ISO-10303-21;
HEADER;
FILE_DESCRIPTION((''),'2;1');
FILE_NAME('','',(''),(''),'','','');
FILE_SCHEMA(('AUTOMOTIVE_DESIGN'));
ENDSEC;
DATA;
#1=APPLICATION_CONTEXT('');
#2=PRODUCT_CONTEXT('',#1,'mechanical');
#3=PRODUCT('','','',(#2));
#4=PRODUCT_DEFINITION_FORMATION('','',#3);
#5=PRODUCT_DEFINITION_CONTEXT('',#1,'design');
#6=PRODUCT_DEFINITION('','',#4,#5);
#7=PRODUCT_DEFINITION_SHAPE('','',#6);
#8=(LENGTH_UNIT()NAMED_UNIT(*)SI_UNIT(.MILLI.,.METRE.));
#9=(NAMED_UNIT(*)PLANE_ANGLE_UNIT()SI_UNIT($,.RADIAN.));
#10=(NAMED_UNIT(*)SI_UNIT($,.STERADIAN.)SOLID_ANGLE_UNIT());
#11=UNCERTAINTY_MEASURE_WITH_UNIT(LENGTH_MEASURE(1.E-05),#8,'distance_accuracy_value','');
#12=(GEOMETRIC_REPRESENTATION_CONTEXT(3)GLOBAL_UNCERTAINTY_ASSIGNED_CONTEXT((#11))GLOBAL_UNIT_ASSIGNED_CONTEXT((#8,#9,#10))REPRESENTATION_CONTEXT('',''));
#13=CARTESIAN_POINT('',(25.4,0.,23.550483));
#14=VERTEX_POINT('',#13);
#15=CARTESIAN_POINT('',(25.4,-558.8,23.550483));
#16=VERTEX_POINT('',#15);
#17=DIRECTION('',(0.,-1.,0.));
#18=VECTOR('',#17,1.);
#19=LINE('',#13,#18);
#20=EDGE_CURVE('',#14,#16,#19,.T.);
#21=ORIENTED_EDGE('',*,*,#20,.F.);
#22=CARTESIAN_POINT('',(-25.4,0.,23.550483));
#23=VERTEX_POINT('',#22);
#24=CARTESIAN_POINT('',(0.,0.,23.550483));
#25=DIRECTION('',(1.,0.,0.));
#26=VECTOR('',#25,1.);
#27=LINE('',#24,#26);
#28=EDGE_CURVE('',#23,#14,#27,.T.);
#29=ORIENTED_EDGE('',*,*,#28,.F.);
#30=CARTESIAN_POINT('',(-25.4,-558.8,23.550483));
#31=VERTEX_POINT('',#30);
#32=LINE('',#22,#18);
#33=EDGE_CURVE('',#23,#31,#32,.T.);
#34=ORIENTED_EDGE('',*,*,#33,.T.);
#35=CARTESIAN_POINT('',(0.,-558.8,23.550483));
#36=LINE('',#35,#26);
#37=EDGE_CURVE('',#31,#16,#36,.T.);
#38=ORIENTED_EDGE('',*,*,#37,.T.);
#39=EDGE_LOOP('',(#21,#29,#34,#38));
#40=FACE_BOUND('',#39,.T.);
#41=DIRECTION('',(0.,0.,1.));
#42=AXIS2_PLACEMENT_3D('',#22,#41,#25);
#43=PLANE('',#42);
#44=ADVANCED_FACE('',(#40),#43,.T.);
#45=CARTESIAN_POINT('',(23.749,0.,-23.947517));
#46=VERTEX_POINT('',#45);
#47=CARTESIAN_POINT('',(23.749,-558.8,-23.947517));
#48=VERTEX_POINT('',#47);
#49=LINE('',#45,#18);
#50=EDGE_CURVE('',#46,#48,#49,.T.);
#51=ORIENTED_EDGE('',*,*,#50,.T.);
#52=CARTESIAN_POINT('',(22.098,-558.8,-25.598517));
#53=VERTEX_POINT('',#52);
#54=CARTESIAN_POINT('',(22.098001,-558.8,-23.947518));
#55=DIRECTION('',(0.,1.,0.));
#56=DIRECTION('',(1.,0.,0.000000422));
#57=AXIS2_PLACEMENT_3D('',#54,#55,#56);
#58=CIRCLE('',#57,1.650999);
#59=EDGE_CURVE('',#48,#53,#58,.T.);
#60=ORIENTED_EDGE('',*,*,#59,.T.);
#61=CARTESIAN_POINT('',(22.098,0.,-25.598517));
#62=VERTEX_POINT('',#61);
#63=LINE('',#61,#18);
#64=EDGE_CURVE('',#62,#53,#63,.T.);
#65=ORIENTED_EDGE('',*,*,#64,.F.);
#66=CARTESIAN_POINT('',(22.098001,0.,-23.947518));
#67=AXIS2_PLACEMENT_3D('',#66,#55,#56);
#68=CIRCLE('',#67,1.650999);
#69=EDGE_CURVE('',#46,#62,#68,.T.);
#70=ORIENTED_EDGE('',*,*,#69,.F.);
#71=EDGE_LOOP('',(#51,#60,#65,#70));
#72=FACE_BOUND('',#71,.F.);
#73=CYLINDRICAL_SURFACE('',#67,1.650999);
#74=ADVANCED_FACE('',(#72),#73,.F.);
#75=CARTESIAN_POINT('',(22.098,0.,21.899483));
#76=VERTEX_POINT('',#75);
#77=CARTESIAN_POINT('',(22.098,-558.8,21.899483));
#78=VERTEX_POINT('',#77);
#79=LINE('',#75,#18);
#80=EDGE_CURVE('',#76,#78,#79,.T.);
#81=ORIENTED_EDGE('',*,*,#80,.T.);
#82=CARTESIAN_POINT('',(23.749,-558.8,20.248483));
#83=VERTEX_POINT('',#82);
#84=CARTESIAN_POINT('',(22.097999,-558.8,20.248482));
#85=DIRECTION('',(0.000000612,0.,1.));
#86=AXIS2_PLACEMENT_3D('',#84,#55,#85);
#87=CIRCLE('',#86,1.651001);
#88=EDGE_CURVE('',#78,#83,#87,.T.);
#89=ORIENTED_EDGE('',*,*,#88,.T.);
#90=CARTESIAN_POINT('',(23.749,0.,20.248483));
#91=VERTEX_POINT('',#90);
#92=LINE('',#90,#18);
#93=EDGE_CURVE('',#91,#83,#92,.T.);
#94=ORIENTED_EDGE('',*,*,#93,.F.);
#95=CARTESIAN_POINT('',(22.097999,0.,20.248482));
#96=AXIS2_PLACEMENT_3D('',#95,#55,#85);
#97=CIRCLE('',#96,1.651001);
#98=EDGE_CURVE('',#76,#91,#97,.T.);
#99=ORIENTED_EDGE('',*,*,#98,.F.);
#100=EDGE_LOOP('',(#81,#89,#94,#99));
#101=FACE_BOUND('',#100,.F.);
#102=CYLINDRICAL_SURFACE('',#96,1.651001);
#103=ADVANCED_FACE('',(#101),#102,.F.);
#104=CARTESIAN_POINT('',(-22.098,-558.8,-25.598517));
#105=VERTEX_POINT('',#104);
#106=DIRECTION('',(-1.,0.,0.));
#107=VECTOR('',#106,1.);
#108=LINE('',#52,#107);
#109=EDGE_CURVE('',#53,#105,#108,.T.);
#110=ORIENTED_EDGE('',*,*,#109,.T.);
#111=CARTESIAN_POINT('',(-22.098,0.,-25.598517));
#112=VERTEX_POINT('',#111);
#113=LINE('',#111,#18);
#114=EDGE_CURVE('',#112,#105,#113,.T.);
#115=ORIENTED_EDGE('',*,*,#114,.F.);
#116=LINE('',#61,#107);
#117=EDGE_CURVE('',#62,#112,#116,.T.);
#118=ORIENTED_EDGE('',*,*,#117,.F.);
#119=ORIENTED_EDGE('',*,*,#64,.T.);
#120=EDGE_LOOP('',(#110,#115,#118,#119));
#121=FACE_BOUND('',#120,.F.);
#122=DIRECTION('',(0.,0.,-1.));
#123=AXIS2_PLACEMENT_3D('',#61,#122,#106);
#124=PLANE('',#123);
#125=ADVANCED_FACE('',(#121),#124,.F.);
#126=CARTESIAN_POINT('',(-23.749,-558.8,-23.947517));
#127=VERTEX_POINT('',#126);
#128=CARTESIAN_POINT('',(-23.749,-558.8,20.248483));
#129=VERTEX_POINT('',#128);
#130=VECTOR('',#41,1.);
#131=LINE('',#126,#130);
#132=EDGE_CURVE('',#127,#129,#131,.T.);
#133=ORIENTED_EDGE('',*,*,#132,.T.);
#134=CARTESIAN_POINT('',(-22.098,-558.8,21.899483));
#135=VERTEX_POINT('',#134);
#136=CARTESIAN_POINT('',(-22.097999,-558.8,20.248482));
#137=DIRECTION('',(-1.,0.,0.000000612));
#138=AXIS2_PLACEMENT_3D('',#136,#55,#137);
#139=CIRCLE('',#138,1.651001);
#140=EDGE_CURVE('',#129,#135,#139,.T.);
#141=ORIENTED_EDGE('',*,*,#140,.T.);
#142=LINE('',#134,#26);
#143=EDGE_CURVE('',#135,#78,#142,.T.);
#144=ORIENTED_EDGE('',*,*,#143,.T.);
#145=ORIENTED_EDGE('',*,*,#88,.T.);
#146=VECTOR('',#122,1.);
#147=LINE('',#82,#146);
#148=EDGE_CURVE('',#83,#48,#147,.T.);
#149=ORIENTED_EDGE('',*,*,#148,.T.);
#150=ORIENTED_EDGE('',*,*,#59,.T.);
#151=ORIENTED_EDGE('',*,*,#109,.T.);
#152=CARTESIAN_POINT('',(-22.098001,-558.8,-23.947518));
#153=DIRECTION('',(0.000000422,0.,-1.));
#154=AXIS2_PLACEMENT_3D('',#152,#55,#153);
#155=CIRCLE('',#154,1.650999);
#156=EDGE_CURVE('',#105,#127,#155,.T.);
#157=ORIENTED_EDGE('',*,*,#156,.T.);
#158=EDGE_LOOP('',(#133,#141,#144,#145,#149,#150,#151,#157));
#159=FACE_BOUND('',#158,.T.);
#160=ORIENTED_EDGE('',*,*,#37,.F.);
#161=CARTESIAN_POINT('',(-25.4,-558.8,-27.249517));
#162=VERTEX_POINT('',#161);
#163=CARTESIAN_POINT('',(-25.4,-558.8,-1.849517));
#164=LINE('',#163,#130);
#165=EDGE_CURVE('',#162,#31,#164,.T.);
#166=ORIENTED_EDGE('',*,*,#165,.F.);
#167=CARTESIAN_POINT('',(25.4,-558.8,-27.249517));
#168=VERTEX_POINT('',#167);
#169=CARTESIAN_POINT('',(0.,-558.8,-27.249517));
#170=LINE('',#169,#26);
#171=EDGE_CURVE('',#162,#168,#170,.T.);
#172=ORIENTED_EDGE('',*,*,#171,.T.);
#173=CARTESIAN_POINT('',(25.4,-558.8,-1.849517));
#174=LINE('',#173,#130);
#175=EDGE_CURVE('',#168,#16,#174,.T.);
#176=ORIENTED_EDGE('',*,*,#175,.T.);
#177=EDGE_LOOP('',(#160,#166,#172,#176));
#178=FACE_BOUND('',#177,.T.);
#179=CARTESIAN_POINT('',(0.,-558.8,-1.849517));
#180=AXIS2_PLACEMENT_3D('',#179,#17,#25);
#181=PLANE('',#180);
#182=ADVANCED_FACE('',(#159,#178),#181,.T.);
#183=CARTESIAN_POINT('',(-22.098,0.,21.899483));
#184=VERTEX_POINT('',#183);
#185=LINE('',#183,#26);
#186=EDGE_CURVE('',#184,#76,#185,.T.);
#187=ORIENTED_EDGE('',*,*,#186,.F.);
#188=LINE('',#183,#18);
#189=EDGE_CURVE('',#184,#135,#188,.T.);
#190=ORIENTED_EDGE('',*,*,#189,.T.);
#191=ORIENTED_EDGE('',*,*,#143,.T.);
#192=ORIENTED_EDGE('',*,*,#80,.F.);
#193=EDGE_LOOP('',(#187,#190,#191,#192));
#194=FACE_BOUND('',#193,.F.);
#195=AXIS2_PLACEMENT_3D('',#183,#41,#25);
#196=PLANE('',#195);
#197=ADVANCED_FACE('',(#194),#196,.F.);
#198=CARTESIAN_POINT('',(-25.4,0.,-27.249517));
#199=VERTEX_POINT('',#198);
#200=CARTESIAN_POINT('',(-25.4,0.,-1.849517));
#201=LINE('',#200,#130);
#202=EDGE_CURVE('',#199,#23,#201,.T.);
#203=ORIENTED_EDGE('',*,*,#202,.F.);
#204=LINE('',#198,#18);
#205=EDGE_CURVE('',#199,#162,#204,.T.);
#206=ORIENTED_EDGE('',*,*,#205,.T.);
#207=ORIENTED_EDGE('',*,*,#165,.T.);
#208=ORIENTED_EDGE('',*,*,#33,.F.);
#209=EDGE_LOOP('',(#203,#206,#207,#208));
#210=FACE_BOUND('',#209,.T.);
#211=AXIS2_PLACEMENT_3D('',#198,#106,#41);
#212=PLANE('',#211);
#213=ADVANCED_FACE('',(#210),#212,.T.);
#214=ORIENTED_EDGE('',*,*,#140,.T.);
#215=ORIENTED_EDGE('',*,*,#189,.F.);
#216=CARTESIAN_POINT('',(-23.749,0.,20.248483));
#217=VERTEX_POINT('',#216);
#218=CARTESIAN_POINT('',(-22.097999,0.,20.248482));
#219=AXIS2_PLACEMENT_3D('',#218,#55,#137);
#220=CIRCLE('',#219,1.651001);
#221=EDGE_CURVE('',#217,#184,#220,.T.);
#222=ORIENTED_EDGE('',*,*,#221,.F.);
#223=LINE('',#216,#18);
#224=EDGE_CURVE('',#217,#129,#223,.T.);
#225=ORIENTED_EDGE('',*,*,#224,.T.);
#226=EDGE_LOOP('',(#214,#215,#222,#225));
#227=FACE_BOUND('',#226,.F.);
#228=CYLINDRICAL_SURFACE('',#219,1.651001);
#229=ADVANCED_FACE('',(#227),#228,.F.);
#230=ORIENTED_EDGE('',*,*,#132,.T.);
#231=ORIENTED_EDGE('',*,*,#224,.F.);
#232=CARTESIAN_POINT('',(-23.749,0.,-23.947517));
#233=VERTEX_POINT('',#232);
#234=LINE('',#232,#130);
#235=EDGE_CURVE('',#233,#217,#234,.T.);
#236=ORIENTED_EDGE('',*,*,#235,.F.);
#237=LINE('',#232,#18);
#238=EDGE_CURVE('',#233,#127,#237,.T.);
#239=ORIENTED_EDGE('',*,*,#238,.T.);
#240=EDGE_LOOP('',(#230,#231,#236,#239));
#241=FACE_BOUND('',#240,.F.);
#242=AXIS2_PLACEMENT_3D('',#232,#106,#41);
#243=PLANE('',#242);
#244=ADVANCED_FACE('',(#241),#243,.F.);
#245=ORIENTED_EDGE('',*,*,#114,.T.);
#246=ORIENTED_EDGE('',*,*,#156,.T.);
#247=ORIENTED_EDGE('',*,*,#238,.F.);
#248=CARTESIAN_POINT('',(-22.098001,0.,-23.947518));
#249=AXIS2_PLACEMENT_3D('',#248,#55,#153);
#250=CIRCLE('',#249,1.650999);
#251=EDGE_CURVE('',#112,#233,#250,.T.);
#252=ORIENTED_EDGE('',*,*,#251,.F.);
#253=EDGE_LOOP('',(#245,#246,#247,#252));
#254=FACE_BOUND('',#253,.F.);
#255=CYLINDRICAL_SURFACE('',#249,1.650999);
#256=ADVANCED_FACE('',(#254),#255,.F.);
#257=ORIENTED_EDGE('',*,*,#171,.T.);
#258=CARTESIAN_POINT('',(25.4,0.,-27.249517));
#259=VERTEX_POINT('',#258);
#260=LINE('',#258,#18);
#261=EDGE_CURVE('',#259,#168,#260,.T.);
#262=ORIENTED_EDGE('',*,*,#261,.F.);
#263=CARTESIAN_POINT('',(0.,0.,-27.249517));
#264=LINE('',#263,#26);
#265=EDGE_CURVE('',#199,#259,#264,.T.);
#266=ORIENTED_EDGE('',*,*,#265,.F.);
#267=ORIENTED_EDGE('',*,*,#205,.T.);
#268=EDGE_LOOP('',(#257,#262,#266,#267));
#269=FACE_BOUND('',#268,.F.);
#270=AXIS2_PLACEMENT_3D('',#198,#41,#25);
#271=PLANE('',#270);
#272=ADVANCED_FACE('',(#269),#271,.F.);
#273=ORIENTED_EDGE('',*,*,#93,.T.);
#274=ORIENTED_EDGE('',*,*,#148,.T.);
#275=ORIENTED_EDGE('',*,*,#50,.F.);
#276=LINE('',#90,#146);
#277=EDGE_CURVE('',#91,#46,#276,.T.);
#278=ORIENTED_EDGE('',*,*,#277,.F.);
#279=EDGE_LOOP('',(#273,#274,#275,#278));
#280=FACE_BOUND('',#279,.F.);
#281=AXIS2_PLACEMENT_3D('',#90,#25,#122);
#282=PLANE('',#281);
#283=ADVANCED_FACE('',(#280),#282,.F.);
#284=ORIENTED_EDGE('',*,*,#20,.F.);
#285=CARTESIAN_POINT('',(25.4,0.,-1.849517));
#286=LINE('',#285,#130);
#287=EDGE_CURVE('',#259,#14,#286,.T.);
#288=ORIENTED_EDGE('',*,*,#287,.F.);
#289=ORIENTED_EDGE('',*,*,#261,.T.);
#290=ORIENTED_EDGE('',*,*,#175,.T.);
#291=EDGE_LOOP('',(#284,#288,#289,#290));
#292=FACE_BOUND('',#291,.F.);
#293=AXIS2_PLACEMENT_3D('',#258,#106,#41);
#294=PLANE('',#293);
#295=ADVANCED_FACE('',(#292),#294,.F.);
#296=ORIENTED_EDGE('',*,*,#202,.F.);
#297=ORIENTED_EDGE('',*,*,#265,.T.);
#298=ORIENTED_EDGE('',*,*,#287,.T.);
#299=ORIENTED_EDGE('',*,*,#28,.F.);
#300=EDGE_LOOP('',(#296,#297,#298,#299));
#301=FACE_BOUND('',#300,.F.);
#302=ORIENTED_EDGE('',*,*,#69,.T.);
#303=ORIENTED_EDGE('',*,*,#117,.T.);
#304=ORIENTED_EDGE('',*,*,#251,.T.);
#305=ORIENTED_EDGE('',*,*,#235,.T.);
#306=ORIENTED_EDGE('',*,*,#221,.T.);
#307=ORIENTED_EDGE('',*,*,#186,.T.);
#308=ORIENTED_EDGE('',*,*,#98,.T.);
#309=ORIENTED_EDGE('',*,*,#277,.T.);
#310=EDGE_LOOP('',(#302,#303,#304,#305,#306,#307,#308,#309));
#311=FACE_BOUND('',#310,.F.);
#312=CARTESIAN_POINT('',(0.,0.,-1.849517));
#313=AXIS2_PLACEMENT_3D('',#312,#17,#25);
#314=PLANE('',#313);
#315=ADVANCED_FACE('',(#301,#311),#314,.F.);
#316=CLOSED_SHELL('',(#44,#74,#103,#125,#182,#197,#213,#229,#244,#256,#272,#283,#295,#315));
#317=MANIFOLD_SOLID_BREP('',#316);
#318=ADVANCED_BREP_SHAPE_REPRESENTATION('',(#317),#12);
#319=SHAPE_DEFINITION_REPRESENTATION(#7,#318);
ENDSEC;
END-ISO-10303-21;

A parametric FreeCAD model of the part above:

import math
import FreeCAD as App
import Part
import Sketcher
from FreeCAD import Vector
Q = App.Units.Quantity

doc = App.newDocument("Part")
body = doc.addObject("PartDesign::Body", "Body")

# Sketch on XZ plane
sketch1 = body.newObject("Sketcher::SketchObject", "Sketch")
sketch1.AttachmentSupport = (doc.getObject("XZ_Plane"), [""])
sketch1.MapMode = "FlatFace"
sketch1.addGeometry([
    Part.LineSegment(Vector(-25.4, 23.6, 0), Vector(-25.4, -27.2, 0)),  # 0
    Part.LineSegment(Vector(-25.4, -27.2, 0), Vector(25.4, -27.2, 0)),  # 1
    Part.LineSegment(Vector(25.4, -27.2, 0), Vector(25.4, 23.6, 0)),  # 2
    Part.LineSegment(Vector(25.4, 23.6, 0), Vector(-25.4, 23.6, 0)),  # 3
    Part.ArcOfCircle(Part.Circle(Vector(-22.1, 20.2, 0), Vector(0, 0, 1), 1.7), math.radians(90), math.radians(180)),  # 4
    Part.LineSegment(Vector(-22.1, 21.9, 0), Vector(22.1, 21.9, 0)),  # 5
    Part.ArcOfCircle(Part.Circle(Vector(22.1, 20.2, 0), Vector(0, 0, 1), 1.7), math.radians(0), math.radians(90)),  # 6
    Part.LineSegment(Vector(23.7, 20.2, 0), Vector(23.7, -23.9, 0)),  # 7
    Part.ArcOfCircle(Part.Circle(Vector(22.1, -23.9, 0), Vector(0, 0, 1), 1.7), math.radians(-90), math.radians(0)),  # 8
    Part.LineSegment(Vector(22.1, -25.6, 0), Vector(-22.1, -25.6, 0)),  # 9
    Part.ArcOfCircle(Part.Circle(Vector(-22.1, -23.9, 0), Vector(0, 0, 1), 1.7), math.radians(180), math.radians(270)),  # 10
    Part.LineSegment(Vector(-23.7, -23.9, 0), Vector(-23.7, 20.2, 0)),  # 11
], False)
sketch1.addConstraint([
    Sketcher.Constraint("Coincident", 0, 2, 1, 1),
    Sketcher.Constraint("Coincident", 1, 2, 2, 1),
    Sketcher.Constraint("Coincident", 2, 2, 3, 1),
    Sketcher.Constraint("Coincident", 3, 2, 0, 1),
    Sketcher.Constraint("Tangent", 4, 1, 5, 1),
    Sketcher.Constraint("Tangent", 5, 2, 6, 2),
    Sketcher.Constraint("Tangent", 6, 1, 7, 1),
    Sketcher.Constraint("Tangent", 7, 2, 8, 2),
    Sketcher.Constraint("Tangent", 8, 1, 9, 1),
    Sketcher.Constraint("Tangent", 9, 2, 10, 2),
    Sketcher.Constraint("Tangent", 10, 1, 11, 1),
    Sketcher.Constraint("Tangent", 11, 2, 4, 2),
    Sketcher.Constraint("Vertical", 0),
    Sketcher.Constraint("Horizontal", 1),
    Sketcher.Constraint("Vertical", 2),
    Sketcher.Constraint("Horizontal", 3),
    Sketcher.Constraint("Horizontal", 5),
    Sketcher.Constraint("Vertical", 7),
    Sketcher.Constraint("Horizontal", 9),
    Sketcher.Constraint("Vertical", 11),
    Sketcher.Constraint("Equal", 4, 6),
    Sketcher.Constraint("Equal", 6, 8),
    Sketcher.Constraint("Equal", 8, 10),
    Sketcher.Constraint("Equal", 3, 0),
    Sketcher.Constraint("Equal", 9, 7),
    Sketcher.Constraint("DistanceX", 1, 1, 1, 2, Q("2 in")),
    Sketcher.Constraint("DistanceX", 0, 2, -1, 1, Q("1 in")),
    Sketcher.Constraint("Radius", 4, Q("0.065 in")),
    Sketcher.Constraint("DistanceX", 5, 1, 5, 2, Q("1.74 in")),
    Sketcher.Constraint("DistanceX", 4, 3, -1, 1, Q("0.87 in")),
    Sketcher.Constraint("DistanceY", 0, 2, 10, 3, Q("0.13 in")),
    Sketcher.Constraint("DistanceY", -1, 1, 4, 3, Q("20.248482 mm")),
])
pad1 = body.newObject("PartDesign::Pad", "Pad")
pad1.Profile = sketch1
pad1.Length = Q("22 in")

doc.recompute()
